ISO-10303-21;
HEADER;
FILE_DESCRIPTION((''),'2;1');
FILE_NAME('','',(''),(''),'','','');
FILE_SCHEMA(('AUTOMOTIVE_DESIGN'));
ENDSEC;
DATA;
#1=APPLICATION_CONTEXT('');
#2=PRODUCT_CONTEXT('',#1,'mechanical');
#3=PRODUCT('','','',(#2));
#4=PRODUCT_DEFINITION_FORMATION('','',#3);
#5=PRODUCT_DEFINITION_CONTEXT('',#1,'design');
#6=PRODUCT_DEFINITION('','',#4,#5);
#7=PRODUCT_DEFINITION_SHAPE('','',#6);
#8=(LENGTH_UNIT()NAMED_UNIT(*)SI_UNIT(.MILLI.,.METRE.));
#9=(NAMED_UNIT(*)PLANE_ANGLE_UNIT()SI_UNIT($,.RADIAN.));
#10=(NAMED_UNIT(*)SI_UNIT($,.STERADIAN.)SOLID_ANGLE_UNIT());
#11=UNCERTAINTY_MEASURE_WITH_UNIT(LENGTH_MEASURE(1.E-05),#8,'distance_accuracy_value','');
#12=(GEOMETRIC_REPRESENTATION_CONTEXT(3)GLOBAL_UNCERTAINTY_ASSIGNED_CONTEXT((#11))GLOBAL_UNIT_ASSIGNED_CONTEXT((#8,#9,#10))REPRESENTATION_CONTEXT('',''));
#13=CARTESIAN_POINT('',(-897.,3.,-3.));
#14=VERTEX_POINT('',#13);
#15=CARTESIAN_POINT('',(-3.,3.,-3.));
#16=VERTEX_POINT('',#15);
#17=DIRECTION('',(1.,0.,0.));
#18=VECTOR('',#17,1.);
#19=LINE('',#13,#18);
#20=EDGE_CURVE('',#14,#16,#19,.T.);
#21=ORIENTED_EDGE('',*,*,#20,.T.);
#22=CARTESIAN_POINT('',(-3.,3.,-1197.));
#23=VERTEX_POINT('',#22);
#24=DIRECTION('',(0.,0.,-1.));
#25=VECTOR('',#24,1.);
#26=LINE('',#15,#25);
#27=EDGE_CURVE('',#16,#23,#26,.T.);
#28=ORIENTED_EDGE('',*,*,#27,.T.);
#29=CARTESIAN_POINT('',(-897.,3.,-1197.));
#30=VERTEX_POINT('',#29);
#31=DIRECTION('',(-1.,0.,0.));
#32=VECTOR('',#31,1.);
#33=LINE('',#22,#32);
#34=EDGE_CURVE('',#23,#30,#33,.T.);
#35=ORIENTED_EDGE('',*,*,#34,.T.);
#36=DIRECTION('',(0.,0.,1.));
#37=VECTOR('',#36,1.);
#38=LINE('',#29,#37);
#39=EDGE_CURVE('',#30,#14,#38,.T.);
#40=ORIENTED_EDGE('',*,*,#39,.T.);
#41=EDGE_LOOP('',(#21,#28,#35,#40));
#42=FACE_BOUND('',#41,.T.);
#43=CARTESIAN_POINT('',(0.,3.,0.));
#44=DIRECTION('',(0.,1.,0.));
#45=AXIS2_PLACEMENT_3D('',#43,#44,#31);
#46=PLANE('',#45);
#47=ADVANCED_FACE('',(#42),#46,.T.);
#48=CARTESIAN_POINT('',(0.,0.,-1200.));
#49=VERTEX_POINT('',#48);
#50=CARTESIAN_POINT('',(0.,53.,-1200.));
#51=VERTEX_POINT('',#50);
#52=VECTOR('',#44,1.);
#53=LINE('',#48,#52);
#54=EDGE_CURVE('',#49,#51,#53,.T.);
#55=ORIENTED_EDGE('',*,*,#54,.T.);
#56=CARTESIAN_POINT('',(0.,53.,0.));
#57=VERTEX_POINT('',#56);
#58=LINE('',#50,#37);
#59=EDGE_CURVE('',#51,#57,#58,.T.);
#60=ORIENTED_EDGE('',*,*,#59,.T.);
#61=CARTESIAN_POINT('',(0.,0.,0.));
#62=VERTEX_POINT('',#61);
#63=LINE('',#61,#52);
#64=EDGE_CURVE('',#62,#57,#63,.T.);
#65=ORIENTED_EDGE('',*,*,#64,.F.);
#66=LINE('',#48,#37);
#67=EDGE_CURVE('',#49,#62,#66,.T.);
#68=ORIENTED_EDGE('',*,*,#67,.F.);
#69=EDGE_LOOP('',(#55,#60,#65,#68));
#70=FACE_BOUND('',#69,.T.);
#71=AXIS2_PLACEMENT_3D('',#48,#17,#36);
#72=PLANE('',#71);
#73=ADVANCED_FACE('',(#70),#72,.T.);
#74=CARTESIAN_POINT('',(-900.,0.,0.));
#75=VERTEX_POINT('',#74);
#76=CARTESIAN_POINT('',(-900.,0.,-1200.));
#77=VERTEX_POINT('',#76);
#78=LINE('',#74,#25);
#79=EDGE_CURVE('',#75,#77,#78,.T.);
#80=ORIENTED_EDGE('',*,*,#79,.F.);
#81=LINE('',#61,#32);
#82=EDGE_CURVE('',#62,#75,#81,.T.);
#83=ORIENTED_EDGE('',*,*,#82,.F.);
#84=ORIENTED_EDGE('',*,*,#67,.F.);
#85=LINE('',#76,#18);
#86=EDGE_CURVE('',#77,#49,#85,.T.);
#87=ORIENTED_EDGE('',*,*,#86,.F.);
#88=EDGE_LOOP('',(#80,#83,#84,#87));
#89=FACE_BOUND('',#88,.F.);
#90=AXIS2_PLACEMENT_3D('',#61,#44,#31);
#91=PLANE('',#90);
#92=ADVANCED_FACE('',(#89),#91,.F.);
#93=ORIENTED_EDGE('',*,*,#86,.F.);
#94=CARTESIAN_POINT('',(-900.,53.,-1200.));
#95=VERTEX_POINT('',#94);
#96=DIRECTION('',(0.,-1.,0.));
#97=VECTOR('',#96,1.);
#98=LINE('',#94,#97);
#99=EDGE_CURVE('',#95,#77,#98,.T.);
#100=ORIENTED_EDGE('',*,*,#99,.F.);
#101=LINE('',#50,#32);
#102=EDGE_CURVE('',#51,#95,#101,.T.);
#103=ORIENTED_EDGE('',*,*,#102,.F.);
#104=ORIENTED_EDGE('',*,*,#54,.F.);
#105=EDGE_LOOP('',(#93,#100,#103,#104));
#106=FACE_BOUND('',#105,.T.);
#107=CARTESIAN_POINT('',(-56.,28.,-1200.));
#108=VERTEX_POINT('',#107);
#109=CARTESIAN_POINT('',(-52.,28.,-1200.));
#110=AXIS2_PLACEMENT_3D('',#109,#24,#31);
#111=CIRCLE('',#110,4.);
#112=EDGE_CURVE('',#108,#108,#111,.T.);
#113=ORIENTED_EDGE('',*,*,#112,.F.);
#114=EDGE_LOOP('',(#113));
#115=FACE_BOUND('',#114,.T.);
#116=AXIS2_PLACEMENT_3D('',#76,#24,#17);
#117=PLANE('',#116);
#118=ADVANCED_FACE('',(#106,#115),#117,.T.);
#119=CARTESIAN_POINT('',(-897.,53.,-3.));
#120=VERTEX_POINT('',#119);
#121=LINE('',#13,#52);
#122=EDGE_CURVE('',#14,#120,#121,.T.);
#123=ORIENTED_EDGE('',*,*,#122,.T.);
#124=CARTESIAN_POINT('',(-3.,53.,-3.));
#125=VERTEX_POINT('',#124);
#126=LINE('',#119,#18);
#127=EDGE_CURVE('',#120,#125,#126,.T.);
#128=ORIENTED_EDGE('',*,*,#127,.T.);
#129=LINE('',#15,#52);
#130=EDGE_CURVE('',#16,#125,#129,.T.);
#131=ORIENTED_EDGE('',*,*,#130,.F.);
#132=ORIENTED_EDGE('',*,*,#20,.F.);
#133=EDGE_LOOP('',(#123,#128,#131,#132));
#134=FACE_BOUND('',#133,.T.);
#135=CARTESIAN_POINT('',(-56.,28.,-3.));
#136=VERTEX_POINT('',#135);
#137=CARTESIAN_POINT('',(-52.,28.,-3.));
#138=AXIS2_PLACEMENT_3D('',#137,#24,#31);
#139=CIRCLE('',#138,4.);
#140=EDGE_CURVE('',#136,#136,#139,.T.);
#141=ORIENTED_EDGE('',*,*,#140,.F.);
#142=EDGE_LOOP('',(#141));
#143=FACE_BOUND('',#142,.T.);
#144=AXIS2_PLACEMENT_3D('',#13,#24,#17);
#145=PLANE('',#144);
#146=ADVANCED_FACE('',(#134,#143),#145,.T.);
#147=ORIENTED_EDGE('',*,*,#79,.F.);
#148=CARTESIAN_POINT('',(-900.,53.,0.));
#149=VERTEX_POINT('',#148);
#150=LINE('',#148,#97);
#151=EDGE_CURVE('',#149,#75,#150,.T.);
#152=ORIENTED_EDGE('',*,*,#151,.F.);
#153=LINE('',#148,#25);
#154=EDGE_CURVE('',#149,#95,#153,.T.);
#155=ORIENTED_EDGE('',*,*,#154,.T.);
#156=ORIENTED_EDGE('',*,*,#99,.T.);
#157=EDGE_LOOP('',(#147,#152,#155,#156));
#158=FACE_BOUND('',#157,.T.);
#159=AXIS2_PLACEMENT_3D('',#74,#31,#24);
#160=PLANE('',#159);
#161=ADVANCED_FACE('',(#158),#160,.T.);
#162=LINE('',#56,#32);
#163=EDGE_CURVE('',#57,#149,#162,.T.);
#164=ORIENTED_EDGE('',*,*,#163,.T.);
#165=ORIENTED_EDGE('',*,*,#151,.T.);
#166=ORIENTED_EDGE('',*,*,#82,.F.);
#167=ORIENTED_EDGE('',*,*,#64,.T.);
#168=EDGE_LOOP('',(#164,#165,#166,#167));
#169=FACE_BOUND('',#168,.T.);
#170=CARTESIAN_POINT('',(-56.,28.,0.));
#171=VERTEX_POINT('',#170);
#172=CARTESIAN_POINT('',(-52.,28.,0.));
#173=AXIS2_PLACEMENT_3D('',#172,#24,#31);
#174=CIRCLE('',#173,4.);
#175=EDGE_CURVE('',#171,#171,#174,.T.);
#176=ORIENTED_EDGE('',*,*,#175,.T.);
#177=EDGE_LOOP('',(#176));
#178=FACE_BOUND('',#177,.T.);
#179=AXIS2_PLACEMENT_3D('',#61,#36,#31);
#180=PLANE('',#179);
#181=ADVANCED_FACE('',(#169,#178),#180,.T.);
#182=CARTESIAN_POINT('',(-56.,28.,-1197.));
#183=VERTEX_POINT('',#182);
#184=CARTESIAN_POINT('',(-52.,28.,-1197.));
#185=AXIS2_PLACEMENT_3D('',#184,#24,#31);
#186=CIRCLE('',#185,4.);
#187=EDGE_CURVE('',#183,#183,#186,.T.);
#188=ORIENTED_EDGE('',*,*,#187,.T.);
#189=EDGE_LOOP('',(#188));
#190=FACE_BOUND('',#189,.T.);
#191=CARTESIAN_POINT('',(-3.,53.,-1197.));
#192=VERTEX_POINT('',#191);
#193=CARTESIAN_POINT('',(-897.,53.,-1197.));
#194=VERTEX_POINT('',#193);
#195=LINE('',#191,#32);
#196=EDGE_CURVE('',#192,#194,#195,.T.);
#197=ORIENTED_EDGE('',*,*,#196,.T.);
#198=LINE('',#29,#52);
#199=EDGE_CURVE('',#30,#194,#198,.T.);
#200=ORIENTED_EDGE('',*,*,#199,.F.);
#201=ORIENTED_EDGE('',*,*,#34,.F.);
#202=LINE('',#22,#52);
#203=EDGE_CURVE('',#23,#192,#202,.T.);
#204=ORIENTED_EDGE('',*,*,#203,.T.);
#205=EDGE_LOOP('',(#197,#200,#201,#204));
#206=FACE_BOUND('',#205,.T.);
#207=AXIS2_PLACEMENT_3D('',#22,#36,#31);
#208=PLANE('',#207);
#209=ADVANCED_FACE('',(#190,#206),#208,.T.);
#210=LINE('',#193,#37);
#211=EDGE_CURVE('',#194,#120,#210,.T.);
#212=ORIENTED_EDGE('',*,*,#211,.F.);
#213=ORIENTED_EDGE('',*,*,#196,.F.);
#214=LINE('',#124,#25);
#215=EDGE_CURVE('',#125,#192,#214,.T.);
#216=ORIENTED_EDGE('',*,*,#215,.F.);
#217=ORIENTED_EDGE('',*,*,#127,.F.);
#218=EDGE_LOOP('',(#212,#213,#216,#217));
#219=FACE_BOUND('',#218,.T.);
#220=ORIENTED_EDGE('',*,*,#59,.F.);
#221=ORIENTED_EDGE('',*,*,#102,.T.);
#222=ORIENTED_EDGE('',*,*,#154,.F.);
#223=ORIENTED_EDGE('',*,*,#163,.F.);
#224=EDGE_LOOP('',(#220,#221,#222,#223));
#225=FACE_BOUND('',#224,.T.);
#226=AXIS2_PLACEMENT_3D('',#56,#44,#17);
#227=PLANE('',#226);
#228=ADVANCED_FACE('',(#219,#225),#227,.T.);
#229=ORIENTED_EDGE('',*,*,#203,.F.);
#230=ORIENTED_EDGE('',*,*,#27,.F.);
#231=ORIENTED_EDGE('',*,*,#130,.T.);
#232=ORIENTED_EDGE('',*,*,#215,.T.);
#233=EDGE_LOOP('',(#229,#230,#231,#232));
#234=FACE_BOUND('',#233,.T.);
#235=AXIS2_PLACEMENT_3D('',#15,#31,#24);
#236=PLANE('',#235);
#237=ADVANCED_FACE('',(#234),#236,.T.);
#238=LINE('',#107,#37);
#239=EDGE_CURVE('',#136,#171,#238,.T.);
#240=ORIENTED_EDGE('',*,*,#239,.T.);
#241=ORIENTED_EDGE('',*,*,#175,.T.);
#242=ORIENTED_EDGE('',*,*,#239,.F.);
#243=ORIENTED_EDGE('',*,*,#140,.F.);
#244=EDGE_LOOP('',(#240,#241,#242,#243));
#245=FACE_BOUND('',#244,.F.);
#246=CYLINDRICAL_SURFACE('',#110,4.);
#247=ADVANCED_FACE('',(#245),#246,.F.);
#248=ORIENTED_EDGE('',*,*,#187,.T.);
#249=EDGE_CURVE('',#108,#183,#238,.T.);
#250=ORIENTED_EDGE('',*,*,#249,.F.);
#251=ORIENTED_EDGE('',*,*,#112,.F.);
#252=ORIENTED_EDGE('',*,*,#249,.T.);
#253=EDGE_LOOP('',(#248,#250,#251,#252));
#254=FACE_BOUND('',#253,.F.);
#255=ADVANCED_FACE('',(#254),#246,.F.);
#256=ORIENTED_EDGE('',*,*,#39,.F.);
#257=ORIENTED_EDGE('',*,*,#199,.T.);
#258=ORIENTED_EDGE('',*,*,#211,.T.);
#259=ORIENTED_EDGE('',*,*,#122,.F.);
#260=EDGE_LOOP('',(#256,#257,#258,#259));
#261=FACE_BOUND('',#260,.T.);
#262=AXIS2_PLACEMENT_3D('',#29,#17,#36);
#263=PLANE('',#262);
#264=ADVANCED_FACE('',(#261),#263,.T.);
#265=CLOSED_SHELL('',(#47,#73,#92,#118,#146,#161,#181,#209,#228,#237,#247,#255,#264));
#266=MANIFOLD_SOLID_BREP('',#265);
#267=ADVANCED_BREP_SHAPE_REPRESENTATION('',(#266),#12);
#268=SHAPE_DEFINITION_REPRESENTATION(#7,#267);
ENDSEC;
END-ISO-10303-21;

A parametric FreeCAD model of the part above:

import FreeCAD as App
import Part
import Sketcher
Q = App.Units.Quantity

doc = App.newDocument("Part")
params = doc.addObject("Spreadsheet::Sheet", "Params")
for row, (alias, value) in enumerate([
    ("sketch1_width", "900 mm"),
    ("sketch1_height", "1200 mm"),
    ("pad1_length", "3 mm"),
    ("sketch2_width", "900 mm"),
    ("sketch2_height", "1200 mm"),
    ("pad2_length", "50 mm"),
    ("sketch3_diameter", "8 mm"),
    ("pocket1_length", "1243.5 mm"),
], start=1):
    params.set(f"A{row}", alias)
    params.set(f"B{row}", "=" + value)
    params.setAlias(f"B{row}", alias)

body = doc.addObject("PartDesign::Body", "Body")

sketch1 = doc.addObject("Sketcher::SketchObject", "Sketch")
body.addObject(sketch1)
sketch1.AttachmentSupport = (doc.XZ_Plane, [""])
sketch1.MapMode = "FlatFace"
sketch1.addGeometry(Part.LineSegment(App.Vector(-900, 0, 0), App.Vector(0, 0, 0)), False)
sketch1.addGeometry(Part.LineSegment(App.Vector(0, 0, 0), App.Vector(0, -1200, 0)), False)
sketch1.addGeometry(Part.LineSegment(App.Vector(0, -1200, 0), App.Vector(-900, -1200, 0)), False)
sketch1.addGeometry(Part.LineSegment(App.Vector(-900, -1200, 0), App.Vector(-900, 0, 0)), False)
sketch1.addConstraint(Sketcher.Constraint("Coincident", 0, 2, 1, 1))
sketch1.addConstraint(Sketcher.Constraint("Coincident", 1, 2, 2, 1))
sketch1.addConstraint(Sketcher.Constraint("Coincident", 2, 2, 3, 1))
sketch1.addConstraint(Sketcher.Constraint("Coincident", 3, 2, 0, 1))
sketch1.addConstraint(Sketcher.Constraint("Horizontal", 0))
sketch1.addConstraint(Sketcher.Constraint("Vertical", 1))
sketch1.addConstraint(Sketcher.Constraint("Horizontal", 2))
sketch1.addConstraint(Sketcher.Constraint("Vertical", 3))
sketch1.addConstraint(Sketcher.Constraint("Coincident", 0, 2, -1, 1))
sketch1.addConstraint(Sketcher.Constraint("DistanceX", 0, 1, 0, 2, Q("900 mm")))
sketch1.addConstraint(Sketcher.Constraint("DistanceY", 1, 2, 1, 1, Q("1200 mm")))
sketch1.setExpression("Constraints[9]", "Params.sketch1_width")
sketch1.setExpression("Constraints[10]", "Params.sketch1_height")
pad1 = doc.addObject("PartDesign::Pad", "Pad")
body.addObject(pad1)
pad1.Profile = sketch1
pad1.setExpression("Length", "Params.pad1_length")
pad1.Reversed = True

sketch2 = doc.addObject("Sketcher::SketchObject", "Sketch001")
body.addObject(sketch2)
sketch2.AttachmentSupport = (doc.XZ_Plane, [""])
sketch2.MapMode = "FlatFace"
sketch2.AttachmentOffset = App.Placement(App.Vector(0, 0, -3), App.Rotation())
sketch2.addGeometry(Part.LineSegment(App.Vector(0, 0, 0), App.Vector(0, -1200, 0)), False)
sketch2.addGeometry(Part.LineSegment(App.Vector(0, -1200, 0), App.Vector(-900, -1200, 0)), False)
sketch2.addGeometry(Part.LineSegment(App.Vector(-900, -1200, 0), App.Vector(-900, 0, 0)), False)
sketch2.addGeometry(Part.LineSegment(App.Vector(-900, 0, 0), App.Vector(0, 0, 0)), False)
sketch2.addGeometry(Part.LineSegment(App.Vector(-897, -3, 0), App.Vector(-897, -1197, 0)), False)
sketch2.addGeometry(Part.LineSegment(App.Vector(-897, -1197, 0), App.Vector(-3, -1197, 0)), False)
sketch2.addGeometry(Part.LineSegment(App.Vector(-3, -1197, 0), App.Vector(-3, -3, 0)), False)
sketch2.addGeometry(Part.LineSegment(App.Vector(-3, -3, 0), App.Vector(-897, -3, 0)), False)
sketch2.addConstraint(Sketcher.Constraint("Coincident", 0, 2, 1, 1))
sketch2.addConstraint(Sketcher.Constraint("Coincident", 1, 2, 2, 1))
sketch2.addConstraint(Sketcher.Constraint("Coincident", 2, 2, 3, 1))
sketch2.addConstraint(Sketcher.Constraint("Coincident", 3, 2, 0, 1))
sketch2.addConstraint(Sketcher.Constraint("Coincident", 4, 2, 5, 1))
sketch2.addConstraint(Sketcher.Constraint("Coincident", 5, 2, 6, 1))
sketch2.addConstraint(Sketcher.Constraint("Coincident", 6, 2, 7, 1))
sketch2.addConstraint(Sketcher.Constraint("Coincident", 7, 2, 4, 1))
sketch2.addConstraint(Sketcher.Constraint("Vertical", 0))
sketch2.addConstraint(Sketcher.Constraint("Horizontal", 1))
sketch2.addConstraint(Sketcher.Constraint("Vertical", 2))
sketch2.addConstraint(Sketcher.Constraint("Horizontal", 3))
sketch2.addConstraint(Sketcher.Constraint("Vertical", 4))
sketch2.addConstraint(Sketcher.Constraint("Horizontal", 5))
sketch2.addConstraint(Sketcher.Constraint("Vertical", 6))
sketch2.addConstraint(Sketcher.Constraint("Horizontal", 7))
sketch2.addConstraint(Sketcher.Constraint("Coincident", 3, 2, -1, 1))
sketch2.addConstraint(Sketcher.Constraint("DistanceX", 5, 2, -1, 1, Q("3 mm")))
sketch2.addConstraint(Sketcher.Constraint("DistanceY", 6, 2, -1, 1, Q("3 mm")))
sketch2.addConstraint(Sketcher.Constraint("DistanceX", 1, 2, 4, 2, Q("3 mm")))
sketch2.addConstraint(Sketcher.Constraint("DistanceY", 1, 2, 4, 2, Q("3 mm")))
sketch2.addConstraint(Sketcher.Constraint("DistanceX", 1, 2, 1, 1, Q("900 mm")))
sketch2.addConstraint(Sketcher.Constraint("DistanceY", 0, 2, 0, 1, Q("1200 mm")))
sketch2.setExpression("Constraints[21]", "Params.sketch2_width")
sketch2.setExpression("Constraints[22]", "Params.sketch2_height")
pad2 = doc.addObject("PartDesign::Pad", "Pad001")
body.addObject(pad2)
pad2.Profile = sketch2
pad2.setExpression("Length", "Params.pad2_length")
pad2.Reversed = True

sketch3 = doc.addObject("Sketcher::SketchObject", "Sketch002")
body.addObject(sketch3)
sketch3.AttachmentSupport = (doc.XY_Plane, [""])
sketch3.MapMode = "FlatFace"
sketch3.AttachmentOffset = App.Placement(App.Vector(0, 0, -1200), App.Rotation())
sketch3.addGeometry(Part.Circle(App.Vector(-52, 28, 0), App.Vector(0, 0, 1), 4), False)
sketch3.addConstraint(Sketcher.Constraint("Diameter", 0, Q("8 mm")))
sketch3.addConstraint(Sketcher.Constraint("DistanceX", 0, 3, -1, 1, Q("52 mm")))
sketch3.addConstraint(Sketcher.Constraint("DistanceY", -1, 1, 0, 3, Q("28 mm")))
sketch3.setExpression("Constraints[0]", "Params.sketch3_diameter")
pocket1 = doc.addObject("PartDesign::Pocket", "Pocket")
body.addObject(pocket1)
pocket1.Profile = sketch3
pocket1.setExpression("Length", "Params.pocket1_length")
pocket1.Reversed = True

doc.recompute()
